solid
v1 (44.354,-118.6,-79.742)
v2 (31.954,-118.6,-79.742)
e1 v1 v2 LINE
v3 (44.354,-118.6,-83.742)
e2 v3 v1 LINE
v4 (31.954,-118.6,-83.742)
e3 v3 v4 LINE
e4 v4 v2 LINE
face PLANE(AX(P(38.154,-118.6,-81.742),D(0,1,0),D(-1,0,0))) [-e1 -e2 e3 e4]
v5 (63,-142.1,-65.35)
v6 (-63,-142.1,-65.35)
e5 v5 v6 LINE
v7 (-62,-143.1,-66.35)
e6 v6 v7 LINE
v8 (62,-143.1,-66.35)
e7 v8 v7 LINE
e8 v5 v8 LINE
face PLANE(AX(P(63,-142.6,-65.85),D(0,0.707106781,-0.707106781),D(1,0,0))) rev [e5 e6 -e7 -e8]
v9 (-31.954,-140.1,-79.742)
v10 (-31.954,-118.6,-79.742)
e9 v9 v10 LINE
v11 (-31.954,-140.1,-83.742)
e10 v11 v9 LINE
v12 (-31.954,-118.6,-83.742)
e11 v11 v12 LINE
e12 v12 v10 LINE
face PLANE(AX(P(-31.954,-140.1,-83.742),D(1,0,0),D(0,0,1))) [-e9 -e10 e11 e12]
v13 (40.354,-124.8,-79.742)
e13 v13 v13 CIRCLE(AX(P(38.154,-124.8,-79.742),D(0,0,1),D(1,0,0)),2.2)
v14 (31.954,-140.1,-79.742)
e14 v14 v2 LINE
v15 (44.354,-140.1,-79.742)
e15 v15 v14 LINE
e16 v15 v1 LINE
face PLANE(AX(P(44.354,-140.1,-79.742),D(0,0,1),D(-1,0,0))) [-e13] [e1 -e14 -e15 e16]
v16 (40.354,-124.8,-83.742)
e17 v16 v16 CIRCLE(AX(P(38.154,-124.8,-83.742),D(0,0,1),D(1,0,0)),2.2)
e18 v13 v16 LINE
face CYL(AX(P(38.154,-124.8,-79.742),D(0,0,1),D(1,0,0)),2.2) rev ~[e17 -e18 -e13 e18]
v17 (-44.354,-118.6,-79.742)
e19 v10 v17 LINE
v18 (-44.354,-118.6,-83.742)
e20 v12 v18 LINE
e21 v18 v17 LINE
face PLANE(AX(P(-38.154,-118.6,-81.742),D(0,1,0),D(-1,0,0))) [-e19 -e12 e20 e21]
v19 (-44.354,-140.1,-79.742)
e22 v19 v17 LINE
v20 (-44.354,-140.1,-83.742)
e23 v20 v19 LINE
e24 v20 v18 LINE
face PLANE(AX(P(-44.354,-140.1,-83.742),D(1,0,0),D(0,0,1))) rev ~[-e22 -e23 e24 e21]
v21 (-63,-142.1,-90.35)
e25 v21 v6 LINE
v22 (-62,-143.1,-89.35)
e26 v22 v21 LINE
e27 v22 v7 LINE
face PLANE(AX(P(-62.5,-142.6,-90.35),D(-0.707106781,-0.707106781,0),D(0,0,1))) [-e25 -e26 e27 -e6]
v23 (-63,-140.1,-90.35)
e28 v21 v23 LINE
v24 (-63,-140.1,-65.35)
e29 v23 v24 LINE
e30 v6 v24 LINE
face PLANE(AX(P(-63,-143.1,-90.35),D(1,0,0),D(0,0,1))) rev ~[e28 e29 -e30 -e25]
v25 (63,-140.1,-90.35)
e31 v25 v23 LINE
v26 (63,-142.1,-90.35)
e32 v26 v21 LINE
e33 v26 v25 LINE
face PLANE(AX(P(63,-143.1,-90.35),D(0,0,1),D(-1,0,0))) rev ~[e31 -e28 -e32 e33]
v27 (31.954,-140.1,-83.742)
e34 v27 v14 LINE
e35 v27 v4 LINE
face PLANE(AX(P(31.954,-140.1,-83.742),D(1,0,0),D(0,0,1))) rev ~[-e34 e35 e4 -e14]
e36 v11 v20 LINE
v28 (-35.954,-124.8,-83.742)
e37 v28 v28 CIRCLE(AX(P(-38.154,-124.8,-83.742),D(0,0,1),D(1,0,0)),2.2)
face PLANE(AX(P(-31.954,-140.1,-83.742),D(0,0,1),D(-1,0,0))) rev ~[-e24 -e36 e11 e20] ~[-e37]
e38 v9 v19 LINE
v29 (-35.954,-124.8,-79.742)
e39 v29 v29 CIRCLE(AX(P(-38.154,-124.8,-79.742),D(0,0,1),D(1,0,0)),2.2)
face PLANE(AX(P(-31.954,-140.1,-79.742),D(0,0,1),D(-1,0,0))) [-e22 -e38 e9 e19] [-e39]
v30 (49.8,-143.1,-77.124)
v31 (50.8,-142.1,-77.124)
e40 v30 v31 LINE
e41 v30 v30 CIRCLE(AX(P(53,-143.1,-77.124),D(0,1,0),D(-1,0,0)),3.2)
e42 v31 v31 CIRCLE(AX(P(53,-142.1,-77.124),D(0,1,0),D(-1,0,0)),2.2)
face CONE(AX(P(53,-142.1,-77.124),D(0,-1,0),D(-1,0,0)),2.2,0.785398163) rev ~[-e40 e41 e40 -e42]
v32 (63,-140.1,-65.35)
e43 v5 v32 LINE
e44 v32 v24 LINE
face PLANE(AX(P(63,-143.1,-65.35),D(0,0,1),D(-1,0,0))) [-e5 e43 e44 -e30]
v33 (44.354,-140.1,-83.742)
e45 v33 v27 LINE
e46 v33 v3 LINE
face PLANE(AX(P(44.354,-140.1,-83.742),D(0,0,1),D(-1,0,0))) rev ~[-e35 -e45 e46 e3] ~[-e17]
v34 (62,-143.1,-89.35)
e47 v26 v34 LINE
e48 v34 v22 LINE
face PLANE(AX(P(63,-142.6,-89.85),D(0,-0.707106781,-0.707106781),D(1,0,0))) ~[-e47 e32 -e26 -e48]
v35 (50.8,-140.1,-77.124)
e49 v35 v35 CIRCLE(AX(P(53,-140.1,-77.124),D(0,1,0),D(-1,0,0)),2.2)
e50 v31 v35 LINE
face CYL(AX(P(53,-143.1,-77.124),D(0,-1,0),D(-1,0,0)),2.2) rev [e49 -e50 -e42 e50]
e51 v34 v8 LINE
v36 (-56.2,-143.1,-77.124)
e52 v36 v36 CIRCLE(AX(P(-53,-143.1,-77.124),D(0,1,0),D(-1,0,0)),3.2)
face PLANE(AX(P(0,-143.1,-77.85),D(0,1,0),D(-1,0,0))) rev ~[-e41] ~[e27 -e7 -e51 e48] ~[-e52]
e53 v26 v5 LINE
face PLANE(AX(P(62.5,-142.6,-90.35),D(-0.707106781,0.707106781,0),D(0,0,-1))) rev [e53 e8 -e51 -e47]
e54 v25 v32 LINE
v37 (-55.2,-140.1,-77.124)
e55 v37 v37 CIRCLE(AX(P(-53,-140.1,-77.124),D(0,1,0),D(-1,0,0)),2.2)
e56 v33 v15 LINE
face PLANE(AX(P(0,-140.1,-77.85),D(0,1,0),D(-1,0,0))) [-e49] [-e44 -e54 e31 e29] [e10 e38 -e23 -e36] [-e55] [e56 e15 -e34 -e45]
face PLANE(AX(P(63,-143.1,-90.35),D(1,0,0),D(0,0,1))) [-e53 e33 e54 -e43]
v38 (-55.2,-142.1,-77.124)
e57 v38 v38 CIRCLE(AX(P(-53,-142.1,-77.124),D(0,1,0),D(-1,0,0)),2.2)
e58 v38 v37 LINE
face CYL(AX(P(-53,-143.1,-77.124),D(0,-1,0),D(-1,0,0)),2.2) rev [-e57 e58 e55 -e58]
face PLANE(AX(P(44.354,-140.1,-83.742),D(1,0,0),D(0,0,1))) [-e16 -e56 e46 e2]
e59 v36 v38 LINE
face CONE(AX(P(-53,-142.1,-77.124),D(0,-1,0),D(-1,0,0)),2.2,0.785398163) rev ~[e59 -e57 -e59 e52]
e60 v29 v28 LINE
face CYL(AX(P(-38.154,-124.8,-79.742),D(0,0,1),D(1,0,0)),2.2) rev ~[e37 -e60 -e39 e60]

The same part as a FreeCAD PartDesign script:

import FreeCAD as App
import Part
import Sketcher
from FreeCAD import Vector
Q = App.Units.Quantity


def edges_at(feature, points):
    """Names of the edges that pass closest to the given points."""
    edges = feature.Shape.Edges
    near = lambda p: min(range(len(edges)), key=lambda i: edges[i].distToShape(Part.Vertex(*p))[0])
    return sorted({f"Edge{near(p) + 1}" for p in points})


def add_polygon(sketch, points):
    """Adds a closed chain of lines whose ends are joined by coincident constraints."""
    first, n = sketch.GeometryCount, len(points)
    for a, b in zip(points, points[1:] + points[:1]):
        sketch.addGeometry(Part.LineSegment(App.Vector(*a, 0), App.Vector(*b, 0)), False)
    for i in range(n):
        sketch.addConstraint(Sketcher.Constraint("Coincident", first + i, 2, first + (i + 1) % n, 1))

doc = App.newDocument("Part")
body = doc.addObject("PartDesign::Body", "Body")

sketch1 = body.newObject("Sketcher::SketchObject", "Sketch")
sketch1.AttachmentSupport = (doc.getObject("XY_Plane"), [""])
sketch1.MapMode = "FlatFace"
add_polygon(sketch1, [(-63, 12.5), (-63, -12.5), (63, -12.5), (63, 12.5)])
sketch1.addGeometry(Part.Circle(Vector(-53, 0.7, 0), Vector(0, 0, 1), 2.2), False)
sketch1.addGeometry(Part.Circle(Vector(53, 0.7, 0), Vector(0, 0, 1), 2.2), False)
sketch1.addConstraint([
    Sketcher.Constraint("Vertical", 0),
    Sketcher.Constraint("Horizontal", 1),
    Sketcher.Constraint("Vertical", 2),
    Sketcher.Constraint("Horizontal", 3),
    Sketcher.Constraint("Equal", 4, 5),
    Sketcher.Constraint("Symmetric", 0, 2, 2, 2, -1, 1),
    Sketcher.Constraint("Symmetric", 4, 3, 5, 3, -2),
    Sketcher.Constraint("Diameter", 4, Q("4.4 mm")),
    Sketcher.Constraint("DistanceX", 1, 1, 1, 2, Q("126 mm")),
    Sketcher.Constraint("DistanceY", 0, 2, 0, 1, Q("25 mm")),
    Sketcher.Constraint("DistanceX", 4, 3, -1, 1, Q("53 mm")),
    Sketcher.Constraint("DistanceY", -1, 1, 4, 3, Q("0.726 mm")),
])
pad1 = body.newObject("PartDesign::Pad", "Pad")
pad1.Profile = sketch1
pad1.Length = 3

sketch2 = body.newObject("Sketcher::SketchObject", "Sketch001")
sketch2.AttachmentSupport = (doc.getObject("XY_Plane"), [""])
sketch2.MapMode = "FlatFace"
sketch2.AttachmentOffset = App.Placement(Vector(0, 0, 3), App.Rotation())
add_polygon(sketch2, [(-44.4, -1.9), (-44.4, -5.9), (-32, -5.9), (-32, -1.9)])
add_polygon(sketch2, [(32, -1.9), (32, -5.9), (44.4, -5.9), (44.4, -1.9)])
sketch2.addConstraint([
    Sketcher.Constraint("Vertical", 0),
    Sketcher.Constraint("Horizontal", 1),
    Sketcher.Constraint("Vertical", 2),
    Sketcher.Constraint("Horizontal", 3),
    Sketcher.Constraint("Vertical", 4),
    Sketcher.Constraint("Horizontal", 5),
    Sketcher.Constraint("Vertical", 6),
    Sketcher.Constraint("Horizontal", 7),
    Sketcher.Constraint("Symmetric", 1, 2, 4, 2, -2),
    Sketcher.Constraint("Symmetric", 3, 2, 6, 2, -2),
    Sketcher.Constraint("DistanceY", 0, 2, 0, 1, Q("4 mm")),
    Sketcher.Constraint("DistanceX", 1, 1, 1, 2, Q("12.4 mm")),
    Sketcher.Constraint("DistanceX", 0, 2, -1, 1, Q("44.354 mm")),
    Sketcher.Constraint("DistanceY", 0, 2, -1, 1, Q("5.892 mm")),
])
pad2 = body.newObject("PartDesign::Pad", "Pad001")
pad2.Profile = sketch2
pad2.Length = 21.5

sketch3 = body.newObject("Sketcher::SketchObject", "Sketch002")
sketch3.AttachmentSupport = (doc.getObject("XZ_Plane"), [""])
sketch3.MapMode = "FlatFace"
sketch3.AttachmentOffset = App.Placement(Vector(0, 0, 1.892), App.Rotation())
sketch3.addGeometry([
    Part.Circle(Vector(38.2, 18.3, 0), Vector(0, 0, 1), 2.2),
    Part.Circle(Vector(-38.2, 18.3, 0), Vector(0, 0, 1), 2.2),
], False)
sketch3.addConstraint([
    Sketcher.Constraint("Equal", 0, 1),
    Sketcher.Constraint("Symmetric", 0, 3, 1, 3, -2),
    Sketcher.Constraint("Diameter", 0, Q("4.4 mm")),
    Sketcher.Constraint("DistanceY", -1, 1, 0, 3, Q("18.3 mm")),
    Sketcher.Constraint("DistanceX", -1, 1, 0, 3, Q("38.154 mm")),
])
pocket1 = body.newObject("PartDesign::Pocket", "Pocket")
pocket1.Profile = sketch3
pocket1.Type = "ThroughAll"
pocket1.Reversed = True
doc.recompute()

chamfer = body.newObject("PartDesign::Chamfer", "Chamfer")
chamfer.Base = (pocket1, edges_at(pocket1, [
    (0, 12.5, 0),
    (63, 0, 0),
    (0, -12.5, 0),
    (-63, 0, 0),
    (50.8, 0.726, 0),
    (-55.2, 0.726, 0),
]))
chamfer.Size = 1
body2 = doc.addObject("PartDesign::Body", "Body001")
doc.recompute()

body.Placement = App.Placement(Vector(0, 0, 0), App.Rotation(Vector(1, 0, 0), 90))
boolean = body2.newObject("PartDesign::Boolean", "Boolean")
boolean.Type = "Fuse"
boolean.addObjects([body])
body3 = doc.addObject("PartDesign::Body", "Body002")
doc.recompute()

body2.Placement = App.Placement(Vector(0, -143.1, -77.85), App.Rotation(Vector(0, 0, 1), 180))
boolean2 = body3.newObject("PartDesign::Boolean", "Boolean001")
boolean2.Type = "Fuse"
boolean2.addObjects([body2])

doc.recompute()
